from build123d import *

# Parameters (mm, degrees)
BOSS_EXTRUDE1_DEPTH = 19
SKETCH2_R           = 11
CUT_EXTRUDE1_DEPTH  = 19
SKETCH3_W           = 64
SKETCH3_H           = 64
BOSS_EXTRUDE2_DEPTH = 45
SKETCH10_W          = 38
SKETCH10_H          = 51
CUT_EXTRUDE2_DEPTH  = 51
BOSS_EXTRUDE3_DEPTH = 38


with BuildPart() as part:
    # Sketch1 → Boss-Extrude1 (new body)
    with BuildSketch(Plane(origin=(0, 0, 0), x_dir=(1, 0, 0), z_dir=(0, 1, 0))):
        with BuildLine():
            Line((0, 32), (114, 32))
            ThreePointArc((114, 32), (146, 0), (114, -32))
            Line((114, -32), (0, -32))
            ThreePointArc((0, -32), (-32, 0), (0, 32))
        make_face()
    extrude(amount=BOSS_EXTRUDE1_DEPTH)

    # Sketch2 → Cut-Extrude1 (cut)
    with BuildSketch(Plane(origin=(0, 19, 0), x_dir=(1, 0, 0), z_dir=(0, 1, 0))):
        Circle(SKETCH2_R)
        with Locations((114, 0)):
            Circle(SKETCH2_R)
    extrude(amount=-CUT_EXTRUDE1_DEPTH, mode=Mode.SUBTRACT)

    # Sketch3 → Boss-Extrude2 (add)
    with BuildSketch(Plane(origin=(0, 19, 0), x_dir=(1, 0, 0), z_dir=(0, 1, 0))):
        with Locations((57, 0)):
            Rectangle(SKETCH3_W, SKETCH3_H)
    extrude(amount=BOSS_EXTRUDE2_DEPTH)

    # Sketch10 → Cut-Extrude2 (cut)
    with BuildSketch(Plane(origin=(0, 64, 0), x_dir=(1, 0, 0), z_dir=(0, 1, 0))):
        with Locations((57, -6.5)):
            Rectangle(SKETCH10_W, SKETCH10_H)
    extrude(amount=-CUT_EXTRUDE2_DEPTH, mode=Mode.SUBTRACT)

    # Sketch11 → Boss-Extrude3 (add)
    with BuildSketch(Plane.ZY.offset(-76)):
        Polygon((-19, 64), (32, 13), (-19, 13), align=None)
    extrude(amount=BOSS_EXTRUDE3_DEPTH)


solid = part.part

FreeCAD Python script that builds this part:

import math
import FreeCAD as App
import Part
import Sketcher
from FreeCAD import Vector
Q = App.Units.Quantity

doc = App.newDocument("Part")
body = doc.addObject("PartDesign::Body", "Body")

# Sketch on XZ plane
sketch1 = body.newObject("Sketcher::SketchObject", "Sketch")
sketch1.AttachmentSupport = (doc.getObject("XZ_Plane"), [""])
sketch1.MapMode = "FlatFace"
sketch1.addGeometry(Part.LineSegment(Vector(114, -32, 0), Vector(0, -32, 0)), False)
sketch1.addGeometry(Part.ArcOfCircle(Part.Circle(Vector(0, 0, 0), Vector(0, 0, 1), 32), math.radians(90), math.radians(270)), False)
sketch1.addGeometry(Part.LineSegment(Vector(0, 32, 0), Vector(114, 32, 0)), False)
sketch1.addGeometry(Part.ArcOfCircle(Part.Circle(Vector(114, 0, 0), Vector(0, 0, 1), 32), math.radians(-90), math.radians(90)), False)
sketch1.addConstraint(Sketcher.Constraint("Tangent", 0, 2, 1, 2))
sketch1.addConstraint(Sketcher.Constraint("Tangent", 1, 1, 2, 1))
sketch1.addConstraint(Sketcher.Constraint("Tangent", 2, 2, 3, 2))
sketch1.addConstraint(Sketcher.Constraint("Tangent", 3, 1, 0, 1))
sketch1.addConstraint(Sketcher.Constraint("Horizontal", 0))
sketch1.addConstraint(Sketcher.Constraint("Horizontal", 2))
sketch1.addConstraint(Sketcher.Constraint("Coincident", 1, 3, -1, 1))
sketch1.addConstraint(Sketcher.Constraint("Radius", 1, Q("32 mm")))
sketch1.addConstraint(Sketcher.Constraint("DistanceX", 0, 2, 0, 1, Q("114 mm")))
pad1 = body.newObject("PartDesign::Pad", "Pad")
pad1.Profile = sketch1
pad1.Length = 19
pad1.Reversed = True

# Sketch on XZ plane
sketch2 = body.newObject("Sketcher::SketchObject", "Sketch001")
sketch2.AttachmentSupport = (doc.getObject("XZ_Plane"), [""])
sketch2.MapMode = "FlatFace"
sketch2.AttachmentOffset = App.Placement(Vector(0, 0, -19), App.Rotation())
sketch2.addGeometry(Part.Circle(Vector(0, 0, 0), Vector(0, 0, 1), 11), False)
sketch2.addGeometry(Part.Circle(Vector(114, 0, 0), Vector(0, 0, 1), 11), False)
sketch2.addConstraint(Sketcher.Constraint("Coincident", 0, 3, -1, 1))
sketch2.addConstraint(Sketcher.Constraint("Equal", 0, 1))
sketch2.addConstraint(Sketcher.Constraint("PointOnObject", 1, 3, -1))
sketch2.addConstraint(Sketcher.Constraint("Diameter", 0, Q("22 mm")))
sketch2.addConstraint(Sketcher.Constraint("DistanceX", -1, 1, 1, 3, Q("114 mm")))
pocket1 = body.newObject("PartDesign::Pocket", "Pocket")
pocket1.Profile = sketch2
pocket1.Length = 19
pocket1.Reversed = True

# Sketch on XZ plane
sketch3 = body.newObject("Sketcher::SketchObject", "Sketch002")
sketch3.AttachmentSupport = (doc.getObject("XZ_Plane"), [""])
sketch3.MapMode = "FlatFace"
sketch3.AttachmentOffset = App.Placement(Vector(0, 0, -19), App.Rotation())
sketch3.addGeometry(Part.LineSegment(Vector(25, -32, 0), Vector(25, 32, 0)), False)
sketch3.addGeometry(Part.LineSegment(Vector(25, 32, 0), Vector(89, 32, 0)), False)
sketch3.addGeometry(Part.LineSegment(Vector(89, 32, 0), Vector(89, -32, 0)), False)
sketch3.addGeometry(Part.LineSegment(Vector(89, -32, 0), Vector(25, -32, 0)), False)
sketch3.addConstraint(Sketcher.Constraint("Coincident", 0, 2, 1, 1))
sketch3.addConstraint(Sketcher.Constraint("Coincident", 1, 2, 2, 1))
sketch3.addConstraint(Sketcher.Constraint("Coincident", 2, 2, 3, 1))
sketch3.addConstraint(Sketcher.Constraint("Coincident", 3, 2, 0, 1))
sketch3.addConstraint(Sketcher.Constraint("Vertical", 0))
sketch3.addConstraint(Sketcher.Constraint("Horizontal", 1))
sketch3.addConstraint(Sketcher.Constraint("Vertical", 2))
sketch3.addConstraint(Sketcher.Constraint("Horizontal", 3))
sketch3.addConstraint(Sketcher.Constraint("Equal", 3, 0))
sketch3.addConstraint(Sketcher.Constraint("DistanceX", 1, 1, 1, 2, Q("64 mm")))
sketch3.addConstraint(Sketcher.Constraint("DistanceX", -1, 1, 0, 2, Q("25 mm")))
sketch3.addConstraint(Sketcher.Constraint("DistanceY", -1, 1, 0, 2, Q("32 mm")))
pad2 = body.newObject("PartDesign::Pad", "Pad001")
pad2.Profile = sketch3
pad2.Length = 45
pad2.Reversed = True

# Sketch on XZ plane
sketch4 = body.newObject("Sketcher::SketchObject", "Sketch003")
sketch4.AttachmentSupport = (doc.getObject("XZ_Plane"), [""])
sketch4.MapMode = "FlatFace"
sketch4.AttachmentOffset = App.Placement(Vector(0, 0, -64), App.Rotation())
sketch4.addGeometry(Part.LineSegment(Vector(38, -19, 0), Vector(38, 32, 0)), False)
sketch4.addGeometry(Part.LineSegment(Vector(38, 32, 0), Vector(76, 32, 0)), False)
sketch4.addGeometry(Part.LineSegment(Vector(76, 32, 0), Vector(76, -19, 0)), False)
sketch4.addGeometry(Part.LineSegment(Vector(76, -19, 0), Vector(38, -19, 0)), False)
sketch4.addConstraint(Sketcher.Constraint("Coincident", 0, 2, 1, 1))
sketch4.addConstraint(Sketcher.Constraint("Coincident", 1, 2, 2, 1))
sketch4.addConstraint(Sketcher.Constraint("Coincident", 2, 2, 3, 1))
sketch4.addConstraint(Sketcher.Constraint("Coincident", 3, 2, 0, 1))
sketch4.addConstraint(Sketcher.Constraint("Vertical", 0))
sketch4.addConstraint(Sketcher.Constraint("Horizontal", 1))
sketch4.addConstraint(Sketcher.Constraint("Vertical", 2))
sketch4.addConstraint(Sketcher.Constraint("Horizontal", 3))
sketch4.addConstraint(Sketcher.Constraint("DistanceX", 1, 1, 1, 2, Q("38 mm")))
sketch4.addConstraint(Sketcher.Constraint("DistanceY", 0, 1, 0, 2, Q("51 mm")))
sketch4.addConstraint(Sketcher.Constraint("DistanceX", -1, 1, 0, 2, Q("38 mm")))
sketch4.addConstraint(Sketcher.Constraint("DistanceY", -1, 1, 0, 2, Q("32 mm")))
pocket2 = body.newObject("PartDesign::Pocket", "Pocket001")
pocket2.Profile = sketch4
pocket2.Length = 51
pocket2.Reversed = True

# Sketch on YZ plane
sketch5 = body.newObject("Sketcher::SketchObject", "Sketch004")
sketch5.AttachmentSupport = (doc.getObject("YZ_Plane"), [""])
sketch5.MapMode = "FlatFace"
sketch5.AttachmentOffset = App.Placement(Vector(0, 0, 76), App.Rotation())
sketch5.addGeometry(Part.LineSegment(Vector(13, 32, 0), Vector(64, -19, 0)), False)
sketch5.addGeometry(Part.LineSegment(Vector(64, -19, 0), Vector(13, -19, 0)), False)
sketch5.addGeometry(Part.LineSegment(Vector(13, -19, 0), Vector(13, 32, 0)), False)
sketch5.addConstraint(Sketcher.Constraint("Coincident", 0, 2, 1, 1))
sketch5.addConstraint(Sketcher.Constraint("Coincident", 1, 2, 2, 1))
sketch5.addConstraint(Sketcher.Constraint("Coincident", 2, 2, 0, 1))
sketch5.addConstraint(Sketcher.Constraint("Horizontal", 1))
sketch5.addConstraint(Sketcher.Constraint("Vertical", 2))
sketch5.addConstraint(Sketcher.Constraint("Equal", 1, 2))
sketch5.addConstraint(Sketcher.Constraint("DistanceX", 1, 2, 1, 1, Q("51 mm")))
sketch5.addConstraint(Sketcher.Constraint("DistanceX", -1, 1, 0, 2, Q("64 mm")))
sketch5.addConstraint(Sketcher.Constraint("DistanceY", 0, 2, -1, 1, Q("19 mm")))
pad3 = body.newObject("PartDesign::Pad", "Pad002")
pad3.Profile = sketch5
pad3.Length = 38
pad3.Reversed = True

doc.recompute()
